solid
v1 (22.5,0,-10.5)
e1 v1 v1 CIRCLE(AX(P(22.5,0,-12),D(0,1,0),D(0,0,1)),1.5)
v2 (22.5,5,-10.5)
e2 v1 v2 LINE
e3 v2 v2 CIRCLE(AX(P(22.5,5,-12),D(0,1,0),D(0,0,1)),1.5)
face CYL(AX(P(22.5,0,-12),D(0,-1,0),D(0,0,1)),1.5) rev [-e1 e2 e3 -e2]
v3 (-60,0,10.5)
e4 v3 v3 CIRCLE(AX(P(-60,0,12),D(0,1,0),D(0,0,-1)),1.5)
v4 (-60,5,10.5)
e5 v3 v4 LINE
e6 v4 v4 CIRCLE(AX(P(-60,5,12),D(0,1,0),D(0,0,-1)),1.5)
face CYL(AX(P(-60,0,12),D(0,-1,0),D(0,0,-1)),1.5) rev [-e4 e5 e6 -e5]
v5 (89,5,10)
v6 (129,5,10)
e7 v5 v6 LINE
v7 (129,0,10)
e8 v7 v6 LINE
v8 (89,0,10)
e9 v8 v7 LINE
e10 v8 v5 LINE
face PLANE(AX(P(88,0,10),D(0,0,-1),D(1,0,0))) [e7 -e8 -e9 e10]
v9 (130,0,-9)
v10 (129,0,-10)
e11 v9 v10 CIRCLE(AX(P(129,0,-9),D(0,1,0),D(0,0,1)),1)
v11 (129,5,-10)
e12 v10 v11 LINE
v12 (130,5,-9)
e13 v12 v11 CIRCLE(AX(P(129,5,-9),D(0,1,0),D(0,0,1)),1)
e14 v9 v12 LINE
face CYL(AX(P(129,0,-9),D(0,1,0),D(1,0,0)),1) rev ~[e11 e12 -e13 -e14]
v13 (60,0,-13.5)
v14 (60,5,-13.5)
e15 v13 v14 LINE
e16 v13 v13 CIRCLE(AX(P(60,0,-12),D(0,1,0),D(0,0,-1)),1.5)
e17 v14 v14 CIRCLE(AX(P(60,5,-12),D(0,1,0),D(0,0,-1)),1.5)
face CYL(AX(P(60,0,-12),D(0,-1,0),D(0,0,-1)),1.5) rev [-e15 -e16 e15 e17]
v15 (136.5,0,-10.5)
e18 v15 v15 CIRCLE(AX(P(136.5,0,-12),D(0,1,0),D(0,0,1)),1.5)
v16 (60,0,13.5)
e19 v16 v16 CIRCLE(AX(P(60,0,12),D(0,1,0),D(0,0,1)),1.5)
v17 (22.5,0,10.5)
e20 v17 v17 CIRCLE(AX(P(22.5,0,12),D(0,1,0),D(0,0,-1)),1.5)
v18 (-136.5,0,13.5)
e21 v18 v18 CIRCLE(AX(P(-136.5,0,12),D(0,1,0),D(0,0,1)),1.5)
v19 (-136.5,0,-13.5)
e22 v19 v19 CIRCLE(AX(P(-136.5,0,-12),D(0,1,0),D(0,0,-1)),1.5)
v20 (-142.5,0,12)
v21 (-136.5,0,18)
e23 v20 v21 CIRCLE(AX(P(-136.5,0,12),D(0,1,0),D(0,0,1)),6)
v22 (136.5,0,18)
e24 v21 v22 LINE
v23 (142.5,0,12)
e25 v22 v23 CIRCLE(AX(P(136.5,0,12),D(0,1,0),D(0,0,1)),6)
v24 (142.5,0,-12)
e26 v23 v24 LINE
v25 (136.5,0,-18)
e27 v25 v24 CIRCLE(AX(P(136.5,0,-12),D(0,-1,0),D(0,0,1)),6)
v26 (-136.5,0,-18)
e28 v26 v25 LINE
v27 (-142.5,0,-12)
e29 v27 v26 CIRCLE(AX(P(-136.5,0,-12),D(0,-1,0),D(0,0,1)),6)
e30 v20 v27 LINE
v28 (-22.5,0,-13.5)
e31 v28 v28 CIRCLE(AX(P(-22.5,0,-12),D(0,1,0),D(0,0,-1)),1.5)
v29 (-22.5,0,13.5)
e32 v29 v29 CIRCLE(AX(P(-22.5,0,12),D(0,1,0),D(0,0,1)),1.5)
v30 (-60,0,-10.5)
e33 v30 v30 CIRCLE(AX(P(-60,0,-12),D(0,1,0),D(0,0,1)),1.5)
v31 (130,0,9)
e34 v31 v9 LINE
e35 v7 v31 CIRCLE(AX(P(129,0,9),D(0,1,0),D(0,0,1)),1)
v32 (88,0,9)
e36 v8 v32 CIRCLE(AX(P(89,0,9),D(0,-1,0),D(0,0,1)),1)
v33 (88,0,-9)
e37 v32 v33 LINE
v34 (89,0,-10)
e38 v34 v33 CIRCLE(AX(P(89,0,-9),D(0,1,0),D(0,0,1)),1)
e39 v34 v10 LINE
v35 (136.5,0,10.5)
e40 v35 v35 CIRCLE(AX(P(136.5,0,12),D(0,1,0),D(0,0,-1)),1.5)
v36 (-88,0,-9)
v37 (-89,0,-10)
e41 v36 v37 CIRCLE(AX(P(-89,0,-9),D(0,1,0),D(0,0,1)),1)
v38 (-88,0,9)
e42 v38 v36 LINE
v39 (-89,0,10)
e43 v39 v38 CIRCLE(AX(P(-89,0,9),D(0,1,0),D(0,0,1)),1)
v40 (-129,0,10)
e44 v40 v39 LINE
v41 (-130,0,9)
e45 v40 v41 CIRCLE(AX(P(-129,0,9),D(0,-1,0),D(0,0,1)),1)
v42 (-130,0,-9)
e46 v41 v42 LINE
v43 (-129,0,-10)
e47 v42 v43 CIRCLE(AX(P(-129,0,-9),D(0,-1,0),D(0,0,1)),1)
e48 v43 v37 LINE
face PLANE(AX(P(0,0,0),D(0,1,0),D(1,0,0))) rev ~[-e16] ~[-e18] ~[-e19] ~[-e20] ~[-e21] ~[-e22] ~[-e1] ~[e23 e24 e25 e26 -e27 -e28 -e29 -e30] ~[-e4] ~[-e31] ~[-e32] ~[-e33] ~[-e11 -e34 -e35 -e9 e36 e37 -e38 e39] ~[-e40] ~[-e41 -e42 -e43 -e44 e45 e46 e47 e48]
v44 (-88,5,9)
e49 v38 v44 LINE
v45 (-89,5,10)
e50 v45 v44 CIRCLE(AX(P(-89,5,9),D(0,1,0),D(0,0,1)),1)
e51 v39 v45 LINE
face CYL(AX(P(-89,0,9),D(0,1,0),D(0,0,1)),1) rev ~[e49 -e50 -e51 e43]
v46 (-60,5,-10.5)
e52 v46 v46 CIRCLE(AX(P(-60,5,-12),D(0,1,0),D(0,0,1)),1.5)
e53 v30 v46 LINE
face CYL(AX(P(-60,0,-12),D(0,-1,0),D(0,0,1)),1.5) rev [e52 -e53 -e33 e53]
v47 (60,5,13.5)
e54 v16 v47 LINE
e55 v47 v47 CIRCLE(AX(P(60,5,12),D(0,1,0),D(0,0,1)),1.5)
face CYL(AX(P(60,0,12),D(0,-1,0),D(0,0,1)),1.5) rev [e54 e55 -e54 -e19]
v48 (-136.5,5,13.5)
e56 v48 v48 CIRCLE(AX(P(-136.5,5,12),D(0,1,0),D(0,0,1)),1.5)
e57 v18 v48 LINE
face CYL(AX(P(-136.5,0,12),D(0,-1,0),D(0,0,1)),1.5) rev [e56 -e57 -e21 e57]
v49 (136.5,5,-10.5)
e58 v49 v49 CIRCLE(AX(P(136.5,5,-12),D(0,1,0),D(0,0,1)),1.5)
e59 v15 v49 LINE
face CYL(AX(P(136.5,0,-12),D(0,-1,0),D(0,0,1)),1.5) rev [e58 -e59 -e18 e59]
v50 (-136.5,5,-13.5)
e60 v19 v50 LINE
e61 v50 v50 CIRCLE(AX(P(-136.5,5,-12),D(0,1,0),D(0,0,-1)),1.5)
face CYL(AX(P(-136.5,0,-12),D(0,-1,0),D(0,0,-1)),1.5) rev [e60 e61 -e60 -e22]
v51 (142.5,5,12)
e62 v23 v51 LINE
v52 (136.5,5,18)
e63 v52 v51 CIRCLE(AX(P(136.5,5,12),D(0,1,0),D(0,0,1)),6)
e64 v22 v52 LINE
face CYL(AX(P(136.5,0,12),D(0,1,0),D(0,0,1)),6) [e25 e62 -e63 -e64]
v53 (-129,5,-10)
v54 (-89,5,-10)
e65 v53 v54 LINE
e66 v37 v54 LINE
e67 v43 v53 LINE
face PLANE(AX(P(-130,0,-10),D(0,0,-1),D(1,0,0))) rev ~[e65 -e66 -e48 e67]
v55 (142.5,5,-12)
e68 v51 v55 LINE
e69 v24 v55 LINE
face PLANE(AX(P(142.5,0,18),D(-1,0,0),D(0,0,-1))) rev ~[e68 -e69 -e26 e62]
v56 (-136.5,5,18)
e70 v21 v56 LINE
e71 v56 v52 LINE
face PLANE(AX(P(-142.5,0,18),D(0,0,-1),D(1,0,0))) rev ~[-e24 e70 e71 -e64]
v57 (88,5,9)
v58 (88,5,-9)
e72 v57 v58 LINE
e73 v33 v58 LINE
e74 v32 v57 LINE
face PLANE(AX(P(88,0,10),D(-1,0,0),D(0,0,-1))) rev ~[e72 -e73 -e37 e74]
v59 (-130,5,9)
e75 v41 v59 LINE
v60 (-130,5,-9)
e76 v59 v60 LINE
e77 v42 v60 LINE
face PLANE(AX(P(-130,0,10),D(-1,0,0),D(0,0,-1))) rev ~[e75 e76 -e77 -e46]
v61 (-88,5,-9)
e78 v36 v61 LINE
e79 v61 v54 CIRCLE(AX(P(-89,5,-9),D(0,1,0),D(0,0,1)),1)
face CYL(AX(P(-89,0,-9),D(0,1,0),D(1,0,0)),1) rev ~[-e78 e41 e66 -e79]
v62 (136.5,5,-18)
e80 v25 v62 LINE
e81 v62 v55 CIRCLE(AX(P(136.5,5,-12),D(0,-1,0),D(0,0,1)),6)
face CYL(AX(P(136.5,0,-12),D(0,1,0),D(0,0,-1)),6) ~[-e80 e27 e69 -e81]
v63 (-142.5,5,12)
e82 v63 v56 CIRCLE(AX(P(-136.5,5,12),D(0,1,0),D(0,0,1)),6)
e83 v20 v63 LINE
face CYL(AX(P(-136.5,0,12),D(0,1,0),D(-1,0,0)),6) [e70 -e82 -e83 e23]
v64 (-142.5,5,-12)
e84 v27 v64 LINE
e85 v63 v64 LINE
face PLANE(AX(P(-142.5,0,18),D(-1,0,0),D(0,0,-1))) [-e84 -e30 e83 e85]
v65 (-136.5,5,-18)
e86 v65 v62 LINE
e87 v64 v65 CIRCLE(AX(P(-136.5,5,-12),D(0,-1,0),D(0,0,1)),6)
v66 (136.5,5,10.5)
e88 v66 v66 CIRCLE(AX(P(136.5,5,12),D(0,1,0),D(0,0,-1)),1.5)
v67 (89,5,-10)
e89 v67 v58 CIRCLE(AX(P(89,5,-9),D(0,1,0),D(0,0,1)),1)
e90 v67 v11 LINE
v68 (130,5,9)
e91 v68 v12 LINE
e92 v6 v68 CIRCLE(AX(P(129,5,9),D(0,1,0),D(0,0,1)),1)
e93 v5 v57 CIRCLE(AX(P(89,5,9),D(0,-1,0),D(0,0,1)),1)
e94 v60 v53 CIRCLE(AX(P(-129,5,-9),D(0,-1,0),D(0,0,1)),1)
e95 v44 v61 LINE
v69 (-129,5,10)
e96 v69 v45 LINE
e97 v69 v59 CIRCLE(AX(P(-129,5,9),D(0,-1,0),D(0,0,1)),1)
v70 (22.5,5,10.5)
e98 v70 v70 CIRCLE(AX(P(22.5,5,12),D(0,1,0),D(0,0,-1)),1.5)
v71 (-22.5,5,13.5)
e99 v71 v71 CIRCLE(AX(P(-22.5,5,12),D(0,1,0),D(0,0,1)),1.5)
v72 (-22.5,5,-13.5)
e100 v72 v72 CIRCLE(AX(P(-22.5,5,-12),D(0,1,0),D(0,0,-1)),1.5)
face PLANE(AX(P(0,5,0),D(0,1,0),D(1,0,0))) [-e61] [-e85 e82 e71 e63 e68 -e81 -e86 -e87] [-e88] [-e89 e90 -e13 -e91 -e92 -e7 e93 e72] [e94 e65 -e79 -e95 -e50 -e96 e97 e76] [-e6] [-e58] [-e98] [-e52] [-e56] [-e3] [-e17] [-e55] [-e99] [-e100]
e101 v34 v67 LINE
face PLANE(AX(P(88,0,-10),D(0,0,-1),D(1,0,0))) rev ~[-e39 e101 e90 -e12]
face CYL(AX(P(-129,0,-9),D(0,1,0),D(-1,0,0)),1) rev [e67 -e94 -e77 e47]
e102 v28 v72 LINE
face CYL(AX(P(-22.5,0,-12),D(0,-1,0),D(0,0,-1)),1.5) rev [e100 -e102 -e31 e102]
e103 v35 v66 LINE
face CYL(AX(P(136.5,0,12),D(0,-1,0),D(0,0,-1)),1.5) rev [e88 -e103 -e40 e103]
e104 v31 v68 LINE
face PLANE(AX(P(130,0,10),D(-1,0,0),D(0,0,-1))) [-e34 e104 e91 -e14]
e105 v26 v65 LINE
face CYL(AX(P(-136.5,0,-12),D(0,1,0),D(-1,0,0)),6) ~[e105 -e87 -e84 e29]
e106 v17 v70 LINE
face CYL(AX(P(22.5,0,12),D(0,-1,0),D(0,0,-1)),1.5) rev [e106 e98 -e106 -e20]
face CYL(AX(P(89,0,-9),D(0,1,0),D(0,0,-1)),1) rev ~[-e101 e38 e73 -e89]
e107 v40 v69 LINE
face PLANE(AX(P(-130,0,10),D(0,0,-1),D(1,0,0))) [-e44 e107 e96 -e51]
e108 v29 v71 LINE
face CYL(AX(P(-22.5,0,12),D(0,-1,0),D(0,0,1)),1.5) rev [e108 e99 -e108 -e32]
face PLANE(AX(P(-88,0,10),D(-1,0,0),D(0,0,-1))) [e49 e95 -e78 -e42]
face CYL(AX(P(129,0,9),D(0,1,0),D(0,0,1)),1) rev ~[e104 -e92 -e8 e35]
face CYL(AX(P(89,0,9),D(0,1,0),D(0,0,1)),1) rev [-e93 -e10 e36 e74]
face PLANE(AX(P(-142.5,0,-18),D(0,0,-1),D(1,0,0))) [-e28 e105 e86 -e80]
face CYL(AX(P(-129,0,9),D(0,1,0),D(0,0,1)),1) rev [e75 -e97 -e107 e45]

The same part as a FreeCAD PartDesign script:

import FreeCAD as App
import Part
import Sketcher


def edges_at(feature, points):
    """Names of the edges that pass closest to the given points."""
    edges = feature.Shape.Edges
    near = lambda p: min(range(len(edges)), key=lambda i: edges[i].distToShape(Part.Vertex(*p))[0])
    return sorted({f"Edge{near(p) + 1}" for p in points})

doc = App.newDocument("Part")
body = doc.addObject("PartDesign::Body", "Body")

# Sketch on XZ plane
sketch1 = doc.addObject("Sketcher::SketchObject", "Sketch")
body.addObject(sketch1)
sketch1.AttachmentSupport = (doc.XZ_Plane, [""])
sketch1.MapMode = "FlatFace"
sketch1.addGeometry([
    Part.LineSegment(App.Vector(-142.5, -18, 0), App.Vector(-142.5, 18, 0)),  # 0
    Part.LineSegment(App.Vector(-142.5, 18, 0), App.Vector(142.5, 18, 0)),  # 1
    Part.LineSegment(App.Vector(142.5, 18, 0), App.Vector(142.5, -18, 0)),  # 2
    Part.LineSegment(App.Vector(142.5, -18, 0), App.Vector(-142.5, -18, 0)),  # 3
    Part.Circle(App.Vector(-136.5, 12, 0), App.Vector(0, 0, 1), 1.5),  # 4
    Part.Circle(App.Vector(-60, 12, 0), App.Vector(0, 0, 1), 1.5),  # 5
    Part.Circle(App.Vector(-22.5, 12, 0), App.Vector(0, 0, 1), 1.5),  # 6
    Part.Circle(App.Vector(22.5, 12, 0), App.Vector(0, 0, 1), 1.5),  # 7
    Part.Circle(App.Vector(60, 12, 0), App.Vector(0, 0, 1), 1.5),  # 8
    Part.Circle(App.Vector(136.5, 12, 0), App.Vector(0, 0, 1), 1.5),  # 9
    Part.LineSegment(App.Vector(-88, 10, 0), App.Vector(-130, 10, 0)),  # 10
    Part.LineSegment(App.Vector(-130, 10, 0), App.Vector(-130, -10, 0)),  # 11
    Part.LineSegment(App.Vector(-130, -10, 0), App.Vector(-88, -10, 0)),  # 12
    Part.LineSegment(App.Vector(-88, -10, 0), App.Vector(-88, 10, 0)),  # 13
    Part.Circle(App.Vector(-136.5, -12, 0), App.Vector(0, 0, 1), 1.5),  # 14
    Part.Circle(App.Vector(-60, -12, 0), App.Vector(0, 0, 1), 1.5),  # 15
    Part.Circle(App.Vector(-22.5, -12, 0), App.Vector(0, 0, 1), 1.5),  # 16
    Part.LineSegment(App.Vector(130, 10, 0), App.Vector(88, 10, 0)),  # 17
    Part.LineSegment(App.Vector(88, 10, 0), App.Vector(88, -10, 0)),  # 18
    Part.LineSegment(App.Vector(88, -10, 0), App.Vector(130, -10, 0)),  # 19
    Part.LineSegment(App.Vector(130, -10, 0), App.Vector(130, 10, 0)),  # 20
    Part.Circle(App.Vector(22.5, -12, 0), App.Vector(0, 0, 1), 1.5),  # 21
    Part.Circle(App.Vector(60, -12, 0), App.Vector(0, 0, 1), 1.5),  # 22
    Part.Circle(App.Vector(136.5, -12, 0), App.Vector(0, 0, 1), 1.5),  # 23
], False)
sketch1.addConstraint([
    Sketcher.Constraint("Coincident", 0, 2, 1, 1),
    Sketcher.Constraint("Coincident", 1, 2, 2, 1),
    Sketcher.Constraint("Coincident", 2, 2, 3, 1),
    Sketcher.Constraint("Coincident", 3, 2, 0, 1),
    Sketcher.Constraint("Coincident", 10, 2, 11, 1),
    Sketcher.Constraint("Coincident", 11, 2, 12, 1),
    Sketcher.Constraint("Coincident", 12, 2, 13, 1),
    Sketcher.Constraint("Coincident", 13, 2, 10, 1),
    Sketcher.Constraint("Coincident", 17, 2, 18, 1),
    Sketcher.Constraint("Coincident", 18, 2, 19, 1),
    Sketcher.Constraint("Coincident", 19, 2, 20, 1),
    Sketcher.Constraint("Coincident", 20, 2, 17, 1),
    Sketcher.Constraint("Vertical", 0),
    Sketcher.Constraint("Horizontal", 1),
    Sketcher.Constraint("Vertical", 2),
    Sketcher.Constraint("Horizontal", 3),
    Sketcher.Constraint("Horizontal", 10),
    Sketcher.Constraint("Vertical", 11),
    Sketcher.Constraint("Horizontal", 12),
    Sketcher.Constraint("Vertical", 13),
    Sketcher.Constraint("Horizontal", 17),
    Sketcher.Constraint("Vertical", 18),
    Sketcher.Constraint("Horizontal", 19),
    Sketcher.Constraint("Vertical", 20),
    Sketcher.Constraint("Equal", 4, 5),
    Sketcher.Constraint("Equal", 5, 6),
    Sketcher.Constraint("Equal", 6, 7),
    Sketcher.Constraint("Equal", 7, 8),
    Sketcher.Constraint("Equal", 8, 9),
    Sketcher.Constraint("Equal", 9, 14),
    Sketcher.Constraint("Equal", 14, 15),
    Sketcher.Constraint("Equal", 15, 16),
    Sketcher.Constraint("Equal", 16, 21),
    Sketcher.Constraint("Equal", 21, 22),
    Sketcher.Constraint("Equal", 22, 23),
    Sketcher.Constraint("Symmetric", 9, 3, 14, 3, -1, 1),
    Sketcher.Constraint("Symmetric", 8, 3, 15, 3, -1, 1),
    Sketcher.Constraint("Symmetric", 7, 3, 16, 3, -1, 1),
    Sketcher.Constraint("Symmetric", 6, 3, 21, 3, -1, 1),
    Sketcher.Constraint("Symmetric", 5, 3, 22, 3, -1, 1),
    Sketcher.Constraint("Symmetric", 4, 3, 23, 3, -1, 1),
    Sketcher.Constraint("Symmetric", 0, 2, 2, 2, -1, 1),
    Sketcher.Constraint("Symmetric", 12, 2, 17, 2, -1, 1),
    Sketcher.Constraint("Symmetric", 10, 2, 19, 2, -1, 1),
    Sketcher.Constraint("Symmetric", 6, 3, 7, 3, -2),
    Sketcher.Constraint("Symmetric", 5, 3, 8, 3, -2),
    Sketcher.Constraint("Symmetric", 4, 3, 9, 3, -2),
    Sketcher.Constraint("Horizontal", 4, 3, 5, 3),
    Sketcher.Constraint("Horizontal", 5, 3, 6, 3),
    Sketcher.Constraint("Horizontal", 13, 2, 17, 2),
    Sketcher.Constraint("Diameter", 4, 3.0),
    Sketcher.Constraint("DistanceX", 1, 1, 1, 2, 285.0),
    Sketcher.Constraint("DistanceX", 10, 2, 10, 1, 42.0),
    Sketcher.Constraint("DistanceY", 0, 1, 0, 2, 36.0),
    Sketcher.Constraint("DistanceY", 11, 2, 11, 1, 20.0),
    Sketcher.Constraint("DistanceY", -1, 1, 4, 3, 12.0),
    Sketcher.Constraint("DistanceX", 5, 3, -1, 1, 60.0),
    Sketcher.Constraint("DistanceX", 10, 2, -1, 1, 130.0),
    Sketcher.Constraint("DistanceX", 4, 3, 6, 3, 114.0),
    Sketcher.Constraint("DistanceX", 6, 3, 7, 3, 45.0),
])
pad1 = doc.addObject("PartDesign::Pad", "Pad")
body.addObject(pad1)
pad1.Profile = sketch1
pad1.Length = 5
pad1.Reversed = True
doc.recompute()

fillet = doc.addObject("PartDesign::Fillet", "Fillet")
body.addObject(fillet)
fillet.Base = (pad1, edges_at(pad1, [
    (142.5, 2.5, 18),
    (-142.5, 2.5, 18),
    (-142.5, 2.5, -18),
    (142.5, 2.5, -18),
]))
fillet.Radius = 6
doc.recompute()

fillet2 = doc.addObject("PartDesign::Fillet", "Fillet001")
body.addObject(fillet2)
fillet2.Base = (fillet, edges_at(fillet, [
    (-88, 2.5, 10),
    (-88, 2.5, -10),
    (-130, 2.5, -10),
    (-130, 2.5, 10),
    (88, 2.5, -10),
    (88, 2.5, 10),
    (130, 2.5, 10),
    (130, 2.5, -10),
]))
fillet2.Radius = 1

doc.recompute()
